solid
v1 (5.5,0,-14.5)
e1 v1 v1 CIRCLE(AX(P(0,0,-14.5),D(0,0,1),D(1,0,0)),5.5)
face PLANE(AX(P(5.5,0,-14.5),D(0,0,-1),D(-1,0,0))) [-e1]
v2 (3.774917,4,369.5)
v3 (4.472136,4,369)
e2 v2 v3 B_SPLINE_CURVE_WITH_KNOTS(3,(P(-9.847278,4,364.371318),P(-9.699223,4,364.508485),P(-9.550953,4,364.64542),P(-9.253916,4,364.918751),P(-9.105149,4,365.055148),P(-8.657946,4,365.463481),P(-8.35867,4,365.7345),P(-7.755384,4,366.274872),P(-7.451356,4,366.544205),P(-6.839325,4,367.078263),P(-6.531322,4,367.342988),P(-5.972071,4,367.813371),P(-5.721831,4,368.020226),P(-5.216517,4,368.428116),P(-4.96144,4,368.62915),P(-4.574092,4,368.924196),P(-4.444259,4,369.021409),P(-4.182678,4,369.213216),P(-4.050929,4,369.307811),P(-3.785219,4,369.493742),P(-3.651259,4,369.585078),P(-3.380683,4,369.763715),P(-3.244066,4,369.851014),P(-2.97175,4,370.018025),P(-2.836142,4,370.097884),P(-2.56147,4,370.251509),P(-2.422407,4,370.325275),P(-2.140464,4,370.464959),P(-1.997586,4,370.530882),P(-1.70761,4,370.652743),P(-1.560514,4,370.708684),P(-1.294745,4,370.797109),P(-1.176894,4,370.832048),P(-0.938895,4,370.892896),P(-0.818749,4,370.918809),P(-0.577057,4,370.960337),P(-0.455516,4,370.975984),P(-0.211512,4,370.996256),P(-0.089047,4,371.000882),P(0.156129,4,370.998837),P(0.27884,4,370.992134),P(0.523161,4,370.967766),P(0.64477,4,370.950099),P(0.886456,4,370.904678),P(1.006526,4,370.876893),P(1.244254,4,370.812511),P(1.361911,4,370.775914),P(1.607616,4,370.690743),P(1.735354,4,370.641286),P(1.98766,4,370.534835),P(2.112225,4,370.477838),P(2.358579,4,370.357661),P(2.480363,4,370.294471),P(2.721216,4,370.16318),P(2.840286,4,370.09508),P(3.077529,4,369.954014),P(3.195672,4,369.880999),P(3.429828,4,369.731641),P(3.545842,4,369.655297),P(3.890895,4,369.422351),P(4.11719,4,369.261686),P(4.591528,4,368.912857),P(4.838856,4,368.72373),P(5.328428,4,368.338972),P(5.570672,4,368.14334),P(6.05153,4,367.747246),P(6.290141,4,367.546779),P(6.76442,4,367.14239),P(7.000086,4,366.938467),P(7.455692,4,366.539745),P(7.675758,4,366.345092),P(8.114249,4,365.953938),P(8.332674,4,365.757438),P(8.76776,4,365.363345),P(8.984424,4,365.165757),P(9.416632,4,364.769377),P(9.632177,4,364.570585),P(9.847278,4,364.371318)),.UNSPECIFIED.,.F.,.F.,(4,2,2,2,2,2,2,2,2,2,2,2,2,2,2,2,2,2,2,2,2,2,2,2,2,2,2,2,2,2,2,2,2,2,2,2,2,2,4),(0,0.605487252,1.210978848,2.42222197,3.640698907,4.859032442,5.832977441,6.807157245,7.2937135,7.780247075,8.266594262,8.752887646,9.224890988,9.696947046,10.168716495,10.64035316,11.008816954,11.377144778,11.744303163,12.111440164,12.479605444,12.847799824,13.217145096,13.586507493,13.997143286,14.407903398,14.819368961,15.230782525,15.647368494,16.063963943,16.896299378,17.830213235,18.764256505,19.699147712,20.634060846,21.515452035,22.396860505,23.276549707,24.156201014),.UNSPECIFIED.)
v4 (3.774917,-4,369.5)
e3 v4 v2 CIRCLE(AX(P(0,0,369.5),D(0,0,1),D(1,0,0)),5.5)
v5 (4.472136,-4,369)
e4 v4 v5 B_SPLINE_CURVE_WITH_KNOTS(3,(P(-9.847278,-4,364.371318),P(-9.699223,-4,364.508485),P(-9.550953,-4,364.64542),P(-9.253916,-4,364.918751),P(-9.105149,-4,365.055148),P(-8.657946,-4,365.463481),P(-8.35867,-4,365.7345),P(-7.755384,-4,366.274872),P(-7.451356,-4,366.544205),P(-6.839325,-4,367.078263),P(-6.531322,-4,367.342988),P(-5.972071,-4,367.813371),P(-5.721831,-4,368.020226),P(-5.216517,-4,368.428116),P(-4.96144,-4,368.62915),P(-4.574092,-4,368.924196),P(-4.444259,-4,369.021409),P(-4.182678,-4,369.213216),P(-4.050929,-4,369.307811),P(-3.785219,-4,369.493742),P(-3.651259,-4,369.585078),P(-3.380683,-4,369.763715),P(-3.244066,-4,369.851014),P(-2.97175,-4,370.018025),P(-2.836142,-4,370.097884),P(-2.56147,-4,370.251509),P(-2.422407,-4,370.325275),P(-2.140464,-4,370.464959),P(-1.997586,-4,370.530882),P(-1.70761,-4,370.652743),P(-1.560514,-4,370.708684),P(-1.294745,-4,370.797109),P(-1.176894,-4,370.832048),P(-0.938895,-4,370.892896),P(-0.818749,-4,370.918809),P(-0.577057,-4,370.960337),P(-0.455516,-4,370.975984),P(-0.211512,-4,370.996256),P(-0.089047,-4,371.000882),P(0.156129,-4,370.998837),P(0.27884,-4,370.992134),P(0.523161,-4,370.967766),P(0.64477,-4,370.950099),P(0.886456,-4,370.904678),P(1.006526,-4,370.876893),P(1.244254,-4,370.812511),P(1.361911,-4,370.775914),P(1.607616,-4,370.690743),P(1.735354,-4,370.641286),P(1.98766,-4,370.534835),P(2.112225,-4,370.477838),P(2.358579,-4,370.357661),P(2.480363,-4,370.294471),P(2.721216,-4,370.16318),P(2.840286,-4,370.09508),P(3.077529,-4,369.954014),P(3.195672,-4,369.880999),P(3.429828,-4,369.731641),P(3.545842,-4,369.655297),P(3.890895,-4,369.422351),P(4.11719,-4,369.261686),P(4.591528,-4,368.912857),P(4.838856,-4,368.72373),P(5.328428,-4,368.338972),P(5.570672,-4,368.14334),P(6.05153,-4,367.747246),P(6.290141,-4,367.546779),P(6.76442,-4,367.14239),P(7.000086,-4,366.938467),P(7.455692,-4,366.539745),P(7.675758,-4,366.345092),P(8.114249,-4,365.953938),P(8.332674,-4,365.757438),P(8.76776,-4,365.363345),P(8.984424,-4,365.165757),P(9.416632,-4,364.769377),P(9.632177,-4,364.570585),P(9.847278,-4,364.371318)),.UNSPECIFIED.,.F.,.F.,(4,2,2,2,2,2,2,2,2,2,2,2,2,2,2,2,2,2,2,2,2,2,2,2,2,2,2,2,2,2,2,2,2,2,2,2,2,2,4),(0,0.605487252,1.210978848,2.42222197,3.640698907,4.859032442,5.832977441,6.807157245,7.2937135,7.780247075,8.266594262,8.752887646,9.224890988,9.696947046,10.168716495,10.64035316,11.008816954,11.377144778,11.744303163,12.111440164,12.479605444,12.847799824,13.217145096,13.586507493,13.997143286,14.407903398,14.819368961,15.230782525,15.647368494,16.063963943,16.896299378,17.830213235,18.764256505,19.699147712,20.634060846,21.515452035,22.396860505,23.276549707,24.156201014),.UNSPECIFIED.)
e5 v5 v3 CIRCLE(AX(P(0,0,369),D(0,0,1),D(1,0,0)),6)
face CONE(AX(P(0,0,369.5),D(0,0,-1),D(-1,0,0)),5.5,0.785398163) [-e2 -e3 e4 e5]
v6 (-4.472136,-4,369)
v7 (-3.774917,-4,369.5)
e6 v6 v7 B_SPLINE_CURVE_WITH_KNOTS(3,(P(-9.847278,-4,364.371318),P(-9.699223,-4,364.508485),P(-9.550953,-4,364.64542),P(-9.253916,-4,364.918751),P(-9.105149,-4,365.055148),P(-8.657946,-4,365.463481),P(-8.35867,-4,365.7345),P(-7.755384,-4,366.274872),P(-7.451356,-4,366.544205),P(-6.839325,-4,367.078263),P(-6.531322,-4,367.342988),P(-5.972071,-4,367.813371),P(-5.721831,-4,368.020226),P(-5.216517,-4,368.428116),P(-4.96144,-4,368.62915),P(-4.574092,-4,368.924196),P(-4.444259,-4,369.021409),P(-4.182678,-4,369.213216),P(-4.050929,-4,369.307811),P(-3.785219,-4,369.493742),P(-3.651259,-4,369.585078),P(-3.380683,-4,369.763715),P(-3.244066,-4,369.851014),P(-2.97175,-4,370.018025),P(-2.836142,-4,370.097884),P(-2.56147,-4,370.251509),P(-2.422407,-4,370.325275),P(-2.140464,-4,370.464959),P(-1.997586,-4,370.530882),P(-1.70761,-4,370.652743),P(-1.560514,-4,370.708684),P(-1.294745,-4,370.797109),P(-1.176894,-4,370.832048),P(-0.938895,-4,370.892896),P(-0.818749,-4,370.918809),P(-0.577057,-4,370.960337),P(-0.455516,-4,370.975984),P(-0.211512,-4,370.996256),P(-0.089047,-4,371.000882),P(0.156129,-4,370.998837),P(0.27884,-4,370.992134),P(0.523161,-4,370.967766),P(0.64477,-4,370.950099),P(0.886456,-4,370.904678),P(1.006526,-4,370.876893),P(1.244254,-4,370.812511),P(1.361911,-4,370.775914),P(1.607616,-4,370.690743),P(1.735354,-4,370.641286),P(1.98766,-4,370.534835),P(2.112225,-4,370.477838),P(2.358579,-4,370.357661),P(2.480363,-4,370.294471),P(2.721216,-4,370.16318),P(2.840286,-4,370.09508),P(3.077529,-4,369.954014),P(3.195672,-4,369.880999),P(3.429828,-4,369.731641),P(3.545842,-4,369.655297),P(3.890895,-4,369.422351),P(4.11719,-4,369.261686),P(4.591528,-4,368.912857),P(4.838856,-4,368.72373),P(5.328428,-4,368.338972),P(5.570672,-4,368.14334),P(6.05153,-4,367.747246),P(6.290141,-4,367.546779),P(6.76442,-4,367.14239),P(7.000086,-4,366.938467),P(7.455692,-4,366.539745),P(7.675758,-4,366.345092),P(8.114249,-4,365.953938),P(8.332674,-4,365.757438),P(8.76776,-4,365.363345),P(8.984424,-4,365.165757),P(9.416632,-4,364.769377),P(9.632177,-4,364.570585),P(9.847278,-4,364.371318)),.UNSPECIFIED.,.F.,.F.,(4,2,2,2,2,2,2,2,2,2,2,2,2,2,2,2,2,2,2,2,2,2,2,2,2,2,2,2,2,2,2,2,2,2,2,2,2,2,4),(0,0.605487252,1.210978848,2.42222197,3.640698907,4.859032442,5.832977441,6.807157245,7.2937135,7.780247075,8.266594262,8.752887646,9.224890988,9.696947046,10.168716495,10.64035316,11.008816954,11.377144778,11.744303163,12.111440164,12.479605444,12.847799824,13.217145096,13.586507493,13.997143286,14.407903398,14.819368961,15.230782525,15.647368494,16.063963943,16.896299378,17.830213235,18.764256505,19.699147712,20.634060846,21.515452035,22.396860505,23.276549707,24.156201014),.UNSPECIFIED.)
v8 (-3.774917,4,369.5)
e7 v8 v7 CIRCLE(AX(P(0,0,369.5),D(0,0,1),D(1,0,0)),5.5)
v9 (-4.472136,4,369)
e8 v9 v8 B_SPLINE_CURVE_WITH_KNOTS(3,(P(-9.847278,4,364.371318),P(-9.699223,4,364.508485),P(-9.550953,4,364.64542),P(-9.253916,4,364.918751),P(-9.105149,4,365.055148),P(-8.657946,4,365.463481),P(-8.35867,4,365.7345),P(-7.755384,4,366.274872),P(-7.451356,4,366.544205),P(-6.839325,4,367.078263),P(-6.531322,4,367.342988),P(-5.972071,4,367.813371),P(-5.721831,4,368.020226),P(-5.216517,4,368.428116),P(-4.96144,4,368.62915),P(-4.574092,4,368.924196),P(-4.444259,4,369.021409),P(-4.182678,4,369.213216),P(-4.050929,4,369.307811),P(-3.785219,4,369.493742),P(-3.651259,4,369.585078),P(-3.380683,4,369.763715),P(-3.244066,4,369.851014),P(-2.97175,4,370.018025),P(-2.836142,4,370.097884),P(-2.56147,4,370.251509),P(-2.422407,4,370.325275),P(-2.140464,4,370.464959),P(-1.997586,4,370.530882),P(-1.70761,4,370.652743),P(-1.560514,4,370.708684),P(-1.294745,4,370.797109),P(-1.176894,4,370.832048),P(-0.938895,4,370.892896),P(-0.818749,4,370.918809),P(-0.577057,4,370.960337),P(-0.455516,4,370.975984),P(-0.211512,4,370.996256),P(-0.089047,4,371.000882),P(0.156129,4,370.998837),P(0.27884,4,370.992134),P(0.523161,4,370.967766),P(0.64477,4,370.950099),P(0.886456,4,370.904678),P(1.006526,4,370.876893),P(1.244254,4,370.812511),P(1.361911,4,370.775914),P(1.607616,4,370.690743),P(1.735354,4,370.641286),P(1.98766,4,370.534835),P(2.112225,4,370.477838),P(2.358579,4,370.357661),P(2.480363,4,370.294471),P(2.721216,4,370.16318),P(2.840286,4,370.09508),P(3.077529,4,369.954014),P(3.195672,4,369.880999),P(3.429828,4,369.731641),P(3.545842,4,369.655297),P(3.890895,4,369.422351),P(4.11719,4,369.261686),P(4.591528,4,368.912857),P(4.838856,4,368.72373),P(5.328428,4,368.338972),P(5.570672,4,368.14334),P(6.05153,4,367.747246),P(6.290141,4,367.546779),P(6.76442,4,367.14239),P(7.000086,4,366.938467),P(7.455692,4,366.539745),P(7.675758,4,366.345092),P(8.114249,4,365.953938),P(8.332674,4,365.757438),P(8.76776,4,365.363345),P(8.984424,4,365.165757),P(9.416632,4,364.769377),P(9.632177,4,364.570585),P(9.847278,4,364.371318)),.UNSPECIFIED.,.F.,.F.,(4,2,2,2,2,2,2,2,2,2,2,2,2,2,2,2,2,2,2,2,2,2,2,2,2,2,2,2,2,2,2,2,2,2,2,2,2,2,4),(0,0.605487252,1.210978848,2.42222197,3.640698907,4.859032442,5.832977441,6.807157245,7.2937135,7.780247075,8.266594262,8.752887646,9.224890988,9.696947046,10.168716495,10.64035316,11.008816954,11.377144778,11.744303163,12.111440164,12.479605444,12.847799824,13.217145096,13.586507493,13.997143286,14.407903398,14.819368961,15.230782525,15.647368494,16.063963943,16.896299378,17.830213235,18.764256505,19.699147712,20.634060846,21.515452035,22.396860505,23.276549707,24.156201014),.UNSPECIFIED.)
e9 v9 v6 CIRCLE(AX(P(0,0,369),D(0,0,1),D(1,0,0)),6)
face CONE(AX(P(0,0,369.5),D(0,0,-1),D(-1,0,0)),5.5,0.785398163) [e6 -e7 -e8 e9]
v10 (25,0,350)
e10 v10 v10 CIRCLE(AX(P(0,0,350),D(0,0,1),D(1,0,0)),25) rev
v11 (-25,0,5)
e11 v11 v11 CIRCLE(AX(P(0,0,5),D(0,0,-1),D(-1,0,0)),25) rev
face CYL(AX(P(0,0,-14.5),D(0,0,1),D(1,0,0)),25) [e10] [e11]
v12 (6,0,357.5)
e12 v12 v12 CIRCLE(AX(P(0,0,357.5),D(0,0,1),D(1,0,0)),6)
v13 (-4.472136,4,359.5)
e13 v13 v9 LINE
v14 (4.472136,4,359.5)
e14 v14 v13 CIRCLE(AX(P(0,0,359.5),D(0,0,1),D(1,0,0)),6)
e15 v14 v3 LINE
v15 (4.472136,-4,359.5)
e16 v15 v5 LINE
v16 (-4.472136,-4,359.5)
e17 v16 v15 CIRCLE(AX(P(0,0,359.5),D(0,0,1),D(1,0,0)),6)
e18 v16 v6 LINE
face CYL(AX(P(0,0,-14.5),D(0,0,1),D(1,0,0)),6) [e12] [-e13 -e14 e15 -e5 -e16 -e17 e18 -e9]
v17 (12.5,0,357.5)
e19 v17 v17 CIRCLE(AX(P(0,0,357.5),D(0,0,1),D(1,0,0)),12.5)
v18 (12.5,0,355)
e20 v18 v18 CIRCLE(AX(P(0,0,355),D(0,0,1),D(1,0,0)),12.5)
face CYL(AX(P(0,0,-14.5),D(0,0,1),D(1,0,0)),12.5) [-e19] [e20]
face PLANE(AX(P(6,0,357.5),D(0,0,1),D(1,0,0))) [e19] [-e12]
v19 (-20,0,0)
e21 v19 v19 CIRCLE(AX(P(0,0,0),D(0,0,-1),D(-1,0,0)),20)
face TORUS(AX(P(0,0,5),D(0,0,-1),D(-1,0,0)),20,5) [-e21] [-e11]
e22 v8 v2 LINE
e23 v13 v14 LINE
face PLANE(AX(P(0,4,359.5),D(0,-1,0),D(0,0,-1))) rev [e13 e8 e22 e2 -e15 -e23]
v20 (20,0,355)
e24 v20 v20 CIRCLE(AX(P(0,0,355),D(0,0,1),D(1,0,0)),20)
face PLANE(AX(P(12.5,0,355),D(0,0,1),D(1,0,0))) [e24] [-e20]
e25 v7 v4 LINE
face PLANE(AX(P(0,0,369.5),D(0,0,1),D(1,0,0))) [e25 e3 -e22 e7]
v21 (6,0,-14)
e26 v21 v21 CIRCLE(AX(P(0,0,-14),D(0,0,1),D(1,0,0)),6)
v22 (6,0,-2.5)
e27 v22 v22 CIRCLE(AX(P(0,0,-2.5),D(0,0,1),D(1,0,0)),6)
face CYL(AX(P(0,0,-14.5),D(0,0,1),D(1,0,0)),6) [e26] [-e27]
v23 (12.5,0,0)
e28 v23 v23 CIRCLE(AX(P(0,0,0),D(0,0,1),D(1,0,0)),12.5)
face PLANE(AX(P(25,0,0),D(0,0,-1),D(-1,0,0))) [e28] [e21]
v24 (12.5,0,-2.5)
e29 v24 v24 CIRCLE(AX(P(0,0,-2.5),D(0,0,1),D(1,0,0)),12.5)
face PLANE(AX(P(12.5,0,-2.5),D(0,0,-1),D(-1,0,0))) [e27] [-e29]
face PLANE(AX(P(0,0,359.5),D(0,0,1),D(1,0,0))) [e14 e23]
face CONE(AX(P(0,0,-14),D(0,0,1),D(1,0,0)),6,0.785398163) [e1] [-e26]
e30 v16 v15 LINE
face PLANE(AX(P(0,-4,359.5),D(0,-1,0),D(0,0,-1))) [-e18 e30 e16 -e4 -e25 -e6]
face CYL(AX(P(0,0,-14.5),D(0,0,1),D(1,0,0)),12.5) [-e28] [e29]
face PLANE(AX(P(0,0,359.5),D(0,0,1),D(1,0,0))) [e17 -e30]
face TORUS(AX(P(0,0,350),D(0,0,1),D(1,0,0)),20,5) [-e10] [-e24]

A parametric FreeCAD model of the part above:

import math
import FreeCAD as App
import Part
import Sketcher

V = App.Vector
Q = App.Units.Quantity


def edges_at(feature, points):
    """Names of the edges that pass closest to the given points."""
    edges = feature.Shape.Edges
    near = lambda p: min(range(len(edges)), key=lambda i: edges[i].distToShape(Part.Vertex(*p))[0])
    return sorted({f"Edge{near(p) + 1}" for p in points})

doc = App.newDocument("Part")
body = doc.addObject("PartDesign::Body", "Body")

sketch1 = body.newObject("Sketcher::SketchObject", "Sketch")
sketch1.AttachmentSupport = (doc.getObject("XZ_Plane"), [""])
sketch1.MapMode = "FlatFace"
sketch1.addGeometry([
    Part.LineSegment(V(5.5, -14.5, 0), V(0, -14.5, 0)),
    Part.LineSegment(V(0, -14.5, 0), V(0, 369.5, 0)),
    Part.LineSegment(V(0, 369.5, 0), V(5.5, 369.5, 0)),
    Part.LineSegment(V(5.5, 369.5, 0), V(6, 369, 0)),
    Part.LineSegment(V(6, 369, 0), V(6, 357.5, 0)),
    Part.LineSegment(V(6, 357.5, 0), V(12.5, 357.5, 0)),
    Part.LineSegment(V(12.5, 357.5, 0), V(12.5, 355, 0)),
    Part.LineSegment(V(12.5, 355, 0), V(25, 355, 0)),
    Part.LineSegment(V(25, 355, 0), V(25, 0, 0)),
    Part.LineSegment(V(25, 0, 0), V(12.5, 0, 0)),
    Part.LineSegment(V(12.5, 0, 0), V(12.5, -2.5, 0)),
    Part.LineSegment(V(12.5, -2.5, 0), V(6, -2.5, 0)),
    Part.LineSegment(V(6, -2.5, 0), V(6, -14, 0)),
    Part.LineSegment(V(6, -14, 0), V(5.5, -14.5, 0)),
], False)
sketch1.addConstraint([
    Sketcher.Constraint("Coincident", 0, 2, 1, 1),
    Sketcher.Constraint("Coincident", 1, 2, 2, 1),
    Sketcher.Constraint("Coincident", 2, 2, 3, 1),
    Sketcher.Constraint("Coincident", 3, 2, 4, 1),
    Sketcher.Constraint("Coincident", 4, 2, 5, 1),
    Sketcher.Constraint("Coincident", 5, 2, 6, 1),
    Sketcher.Constraint("Coincident", 6, 2, 7, 1),
    Sketcher.Constraint("Coincident", 7, 2, 8, 1),
    Sketcher.Constraint("Coincident", 8, 2, 9, 1),
    Sketcher.Constraint("Coincident", 9, 2, 10, 1),
    Sketcher.Constraint("Coincident", 10, 2, 11, 1),
    Sketcher.Constraint("Coincident", 11, 2, 12, 1),
    Sketcher.Constraint("Coincident", 12, 2, 13, 1),
    Sketcher.Constraint("Coincident", 13, 2, 0, 1),
    Sketcher.Constraint("Horizontal", 0),
    Sketcher.Constraint("Vertical", 1),
    Sketcher.Constraint("Horizontal", 2),
    Sketcher.Constraint("Vertical", 4),
    Sketcher.Constraint("Horizontal", 5),
    Sketcher.Constraint("Vertical", 6),
    Sketcher.Constraint("Horizontal", 7),
    Sketcher.Constraint("Vertical", 8),
    Sketcher.Constraint("Horizontal", 9),
    Sketcher.Constraint("Vertical", 10),
    Sketcher.Constraint("Horizontal", 11),
    Sketcher.Constraint("Vertical", 12),
    Sketcher.Constraint("PointOnObject", 0, 2, -2),
    Sketcher.Constraint("PointOnObject", 8, 2, -1),
    Sketcher.Constraint("Perpendicular", 3, 13),
    Sketcher.Constraint("Vertical", 6, 2, 9, 2),
    Sketcher.Constraint("Vertical", 4, 2, 11, 2),
    Sketcher.Constraint("Vertical", 2, 2, 13, 2),
    Sketcher.Constraint("Equal", 6, 10),
    Sketcher.Constraint("Equal", 4, 12),
    Sketcher.Constraint("Equal", 3, 13),
    Sketcher.Constraint("DistanceY", 1, 1, 1, 2, Q("384 mm")),
    Sketcher.Constraint("DistanceY", 8, 2, 8, 1, Q("355 mm")),
    Sketcher.Constraint("DistanceX", 0, 2, 0, 1, Q("5.5 mm")),
    Sketcher.Constraint("DistanceX", 5, 1, 5, 2, Q("6.5 mm")),
    Sketcher.Constraint("DistanceX", 7, 1, 7, 2, Q("12.5 mm")),
    Sketcher.Constraint("DistanceY", 4, 2, 4, 1, Q("11.5 mm")),
    Sketcher.Constraint("DistanceY", 6, 2, 6, 1, Q("2.5 mm")),
])
revolution = body.newObject("PartDesign::Revolution", "Revolution")
revolution.Profile = sketch1
revolution.ReferenceAxis = (sketch1, ["V_Axis"])
revolution.Angle = 360
doc.recompute()

fillet = body.newObject("PartDesign::Fillet", "Fillet")
fillet.Base = (revolution, edges_at(revolution, [(-25, 0, 355), (-25, 0, 0)]))
fillet.Radius = 5

sketch2 = body.newObject("Sketcher::SketchObject", "Sketch001")
sketch2.AttachmentSupport = (doc.getObject("XY_Plane"), [""])
sketch2.MapMode = "FlatFace"
sketch2.AttachmentOffset = App.Placement(V(0, 0, 359.5), App.Rotation())
sketch2.addGeometry([
    Part.ArcOfCircle(Part.Circle(V(0, 0, 0), V(0, 0, 1), 6), math.radians(41.810315), math.radians(138.189685)),
    Part.LineSegment(V(-4.472136, 4, 0), V(4.472136, 4, 0)),
    Part.LineSegment(V(4.472136, -4, 0), V(-4.472136, -4, 0)),
    Part.ArcOfCircle(Part.Circle(V(0, 0, 0), V(0, 0, 1), 6), math.radians(-138.189685), math.radians(-41.810315)),
], False)
sketch2.addConstraint([
    Sketcher.Constraint("Coincident", 0, 1, 1, 2),
    Sketcher.Constraint("Coincident", 1, 1, 0, 2),
    Sketcher.Constraint("Coincident", 2, 1, 3, 2),
    Sketcher.Constraint("Coincident", 3, 1, 2, 2),
    Sketcher.Constraint("Horizontal", 1),
    Sketcher.Constraint("Horizontal", 2),
    Sketcher.Constraint("Coincident", 0, 3, -1, 1),
    Sketcher.Constraint("Coincident", 3, 3, -1, 1),
    Sketcher.Constraint("Equal", 0, 3),
    Sketcher.Constraint("Vertical", 0, 1, 2, 1),
    Sketcher.Constraint("Radius", 0, Q("6 mm")),
    Sketcher.Constraint("DistanceY", -1, 1, 0, 1, Q("4 mm")),
])
pocket1 = body.newObject("PartDesign::Pocket", "Pocket")
pocket1.Profile = sketch2
pocket1.Length = 10
pocket1.Reversed = True

doc.recompute()
